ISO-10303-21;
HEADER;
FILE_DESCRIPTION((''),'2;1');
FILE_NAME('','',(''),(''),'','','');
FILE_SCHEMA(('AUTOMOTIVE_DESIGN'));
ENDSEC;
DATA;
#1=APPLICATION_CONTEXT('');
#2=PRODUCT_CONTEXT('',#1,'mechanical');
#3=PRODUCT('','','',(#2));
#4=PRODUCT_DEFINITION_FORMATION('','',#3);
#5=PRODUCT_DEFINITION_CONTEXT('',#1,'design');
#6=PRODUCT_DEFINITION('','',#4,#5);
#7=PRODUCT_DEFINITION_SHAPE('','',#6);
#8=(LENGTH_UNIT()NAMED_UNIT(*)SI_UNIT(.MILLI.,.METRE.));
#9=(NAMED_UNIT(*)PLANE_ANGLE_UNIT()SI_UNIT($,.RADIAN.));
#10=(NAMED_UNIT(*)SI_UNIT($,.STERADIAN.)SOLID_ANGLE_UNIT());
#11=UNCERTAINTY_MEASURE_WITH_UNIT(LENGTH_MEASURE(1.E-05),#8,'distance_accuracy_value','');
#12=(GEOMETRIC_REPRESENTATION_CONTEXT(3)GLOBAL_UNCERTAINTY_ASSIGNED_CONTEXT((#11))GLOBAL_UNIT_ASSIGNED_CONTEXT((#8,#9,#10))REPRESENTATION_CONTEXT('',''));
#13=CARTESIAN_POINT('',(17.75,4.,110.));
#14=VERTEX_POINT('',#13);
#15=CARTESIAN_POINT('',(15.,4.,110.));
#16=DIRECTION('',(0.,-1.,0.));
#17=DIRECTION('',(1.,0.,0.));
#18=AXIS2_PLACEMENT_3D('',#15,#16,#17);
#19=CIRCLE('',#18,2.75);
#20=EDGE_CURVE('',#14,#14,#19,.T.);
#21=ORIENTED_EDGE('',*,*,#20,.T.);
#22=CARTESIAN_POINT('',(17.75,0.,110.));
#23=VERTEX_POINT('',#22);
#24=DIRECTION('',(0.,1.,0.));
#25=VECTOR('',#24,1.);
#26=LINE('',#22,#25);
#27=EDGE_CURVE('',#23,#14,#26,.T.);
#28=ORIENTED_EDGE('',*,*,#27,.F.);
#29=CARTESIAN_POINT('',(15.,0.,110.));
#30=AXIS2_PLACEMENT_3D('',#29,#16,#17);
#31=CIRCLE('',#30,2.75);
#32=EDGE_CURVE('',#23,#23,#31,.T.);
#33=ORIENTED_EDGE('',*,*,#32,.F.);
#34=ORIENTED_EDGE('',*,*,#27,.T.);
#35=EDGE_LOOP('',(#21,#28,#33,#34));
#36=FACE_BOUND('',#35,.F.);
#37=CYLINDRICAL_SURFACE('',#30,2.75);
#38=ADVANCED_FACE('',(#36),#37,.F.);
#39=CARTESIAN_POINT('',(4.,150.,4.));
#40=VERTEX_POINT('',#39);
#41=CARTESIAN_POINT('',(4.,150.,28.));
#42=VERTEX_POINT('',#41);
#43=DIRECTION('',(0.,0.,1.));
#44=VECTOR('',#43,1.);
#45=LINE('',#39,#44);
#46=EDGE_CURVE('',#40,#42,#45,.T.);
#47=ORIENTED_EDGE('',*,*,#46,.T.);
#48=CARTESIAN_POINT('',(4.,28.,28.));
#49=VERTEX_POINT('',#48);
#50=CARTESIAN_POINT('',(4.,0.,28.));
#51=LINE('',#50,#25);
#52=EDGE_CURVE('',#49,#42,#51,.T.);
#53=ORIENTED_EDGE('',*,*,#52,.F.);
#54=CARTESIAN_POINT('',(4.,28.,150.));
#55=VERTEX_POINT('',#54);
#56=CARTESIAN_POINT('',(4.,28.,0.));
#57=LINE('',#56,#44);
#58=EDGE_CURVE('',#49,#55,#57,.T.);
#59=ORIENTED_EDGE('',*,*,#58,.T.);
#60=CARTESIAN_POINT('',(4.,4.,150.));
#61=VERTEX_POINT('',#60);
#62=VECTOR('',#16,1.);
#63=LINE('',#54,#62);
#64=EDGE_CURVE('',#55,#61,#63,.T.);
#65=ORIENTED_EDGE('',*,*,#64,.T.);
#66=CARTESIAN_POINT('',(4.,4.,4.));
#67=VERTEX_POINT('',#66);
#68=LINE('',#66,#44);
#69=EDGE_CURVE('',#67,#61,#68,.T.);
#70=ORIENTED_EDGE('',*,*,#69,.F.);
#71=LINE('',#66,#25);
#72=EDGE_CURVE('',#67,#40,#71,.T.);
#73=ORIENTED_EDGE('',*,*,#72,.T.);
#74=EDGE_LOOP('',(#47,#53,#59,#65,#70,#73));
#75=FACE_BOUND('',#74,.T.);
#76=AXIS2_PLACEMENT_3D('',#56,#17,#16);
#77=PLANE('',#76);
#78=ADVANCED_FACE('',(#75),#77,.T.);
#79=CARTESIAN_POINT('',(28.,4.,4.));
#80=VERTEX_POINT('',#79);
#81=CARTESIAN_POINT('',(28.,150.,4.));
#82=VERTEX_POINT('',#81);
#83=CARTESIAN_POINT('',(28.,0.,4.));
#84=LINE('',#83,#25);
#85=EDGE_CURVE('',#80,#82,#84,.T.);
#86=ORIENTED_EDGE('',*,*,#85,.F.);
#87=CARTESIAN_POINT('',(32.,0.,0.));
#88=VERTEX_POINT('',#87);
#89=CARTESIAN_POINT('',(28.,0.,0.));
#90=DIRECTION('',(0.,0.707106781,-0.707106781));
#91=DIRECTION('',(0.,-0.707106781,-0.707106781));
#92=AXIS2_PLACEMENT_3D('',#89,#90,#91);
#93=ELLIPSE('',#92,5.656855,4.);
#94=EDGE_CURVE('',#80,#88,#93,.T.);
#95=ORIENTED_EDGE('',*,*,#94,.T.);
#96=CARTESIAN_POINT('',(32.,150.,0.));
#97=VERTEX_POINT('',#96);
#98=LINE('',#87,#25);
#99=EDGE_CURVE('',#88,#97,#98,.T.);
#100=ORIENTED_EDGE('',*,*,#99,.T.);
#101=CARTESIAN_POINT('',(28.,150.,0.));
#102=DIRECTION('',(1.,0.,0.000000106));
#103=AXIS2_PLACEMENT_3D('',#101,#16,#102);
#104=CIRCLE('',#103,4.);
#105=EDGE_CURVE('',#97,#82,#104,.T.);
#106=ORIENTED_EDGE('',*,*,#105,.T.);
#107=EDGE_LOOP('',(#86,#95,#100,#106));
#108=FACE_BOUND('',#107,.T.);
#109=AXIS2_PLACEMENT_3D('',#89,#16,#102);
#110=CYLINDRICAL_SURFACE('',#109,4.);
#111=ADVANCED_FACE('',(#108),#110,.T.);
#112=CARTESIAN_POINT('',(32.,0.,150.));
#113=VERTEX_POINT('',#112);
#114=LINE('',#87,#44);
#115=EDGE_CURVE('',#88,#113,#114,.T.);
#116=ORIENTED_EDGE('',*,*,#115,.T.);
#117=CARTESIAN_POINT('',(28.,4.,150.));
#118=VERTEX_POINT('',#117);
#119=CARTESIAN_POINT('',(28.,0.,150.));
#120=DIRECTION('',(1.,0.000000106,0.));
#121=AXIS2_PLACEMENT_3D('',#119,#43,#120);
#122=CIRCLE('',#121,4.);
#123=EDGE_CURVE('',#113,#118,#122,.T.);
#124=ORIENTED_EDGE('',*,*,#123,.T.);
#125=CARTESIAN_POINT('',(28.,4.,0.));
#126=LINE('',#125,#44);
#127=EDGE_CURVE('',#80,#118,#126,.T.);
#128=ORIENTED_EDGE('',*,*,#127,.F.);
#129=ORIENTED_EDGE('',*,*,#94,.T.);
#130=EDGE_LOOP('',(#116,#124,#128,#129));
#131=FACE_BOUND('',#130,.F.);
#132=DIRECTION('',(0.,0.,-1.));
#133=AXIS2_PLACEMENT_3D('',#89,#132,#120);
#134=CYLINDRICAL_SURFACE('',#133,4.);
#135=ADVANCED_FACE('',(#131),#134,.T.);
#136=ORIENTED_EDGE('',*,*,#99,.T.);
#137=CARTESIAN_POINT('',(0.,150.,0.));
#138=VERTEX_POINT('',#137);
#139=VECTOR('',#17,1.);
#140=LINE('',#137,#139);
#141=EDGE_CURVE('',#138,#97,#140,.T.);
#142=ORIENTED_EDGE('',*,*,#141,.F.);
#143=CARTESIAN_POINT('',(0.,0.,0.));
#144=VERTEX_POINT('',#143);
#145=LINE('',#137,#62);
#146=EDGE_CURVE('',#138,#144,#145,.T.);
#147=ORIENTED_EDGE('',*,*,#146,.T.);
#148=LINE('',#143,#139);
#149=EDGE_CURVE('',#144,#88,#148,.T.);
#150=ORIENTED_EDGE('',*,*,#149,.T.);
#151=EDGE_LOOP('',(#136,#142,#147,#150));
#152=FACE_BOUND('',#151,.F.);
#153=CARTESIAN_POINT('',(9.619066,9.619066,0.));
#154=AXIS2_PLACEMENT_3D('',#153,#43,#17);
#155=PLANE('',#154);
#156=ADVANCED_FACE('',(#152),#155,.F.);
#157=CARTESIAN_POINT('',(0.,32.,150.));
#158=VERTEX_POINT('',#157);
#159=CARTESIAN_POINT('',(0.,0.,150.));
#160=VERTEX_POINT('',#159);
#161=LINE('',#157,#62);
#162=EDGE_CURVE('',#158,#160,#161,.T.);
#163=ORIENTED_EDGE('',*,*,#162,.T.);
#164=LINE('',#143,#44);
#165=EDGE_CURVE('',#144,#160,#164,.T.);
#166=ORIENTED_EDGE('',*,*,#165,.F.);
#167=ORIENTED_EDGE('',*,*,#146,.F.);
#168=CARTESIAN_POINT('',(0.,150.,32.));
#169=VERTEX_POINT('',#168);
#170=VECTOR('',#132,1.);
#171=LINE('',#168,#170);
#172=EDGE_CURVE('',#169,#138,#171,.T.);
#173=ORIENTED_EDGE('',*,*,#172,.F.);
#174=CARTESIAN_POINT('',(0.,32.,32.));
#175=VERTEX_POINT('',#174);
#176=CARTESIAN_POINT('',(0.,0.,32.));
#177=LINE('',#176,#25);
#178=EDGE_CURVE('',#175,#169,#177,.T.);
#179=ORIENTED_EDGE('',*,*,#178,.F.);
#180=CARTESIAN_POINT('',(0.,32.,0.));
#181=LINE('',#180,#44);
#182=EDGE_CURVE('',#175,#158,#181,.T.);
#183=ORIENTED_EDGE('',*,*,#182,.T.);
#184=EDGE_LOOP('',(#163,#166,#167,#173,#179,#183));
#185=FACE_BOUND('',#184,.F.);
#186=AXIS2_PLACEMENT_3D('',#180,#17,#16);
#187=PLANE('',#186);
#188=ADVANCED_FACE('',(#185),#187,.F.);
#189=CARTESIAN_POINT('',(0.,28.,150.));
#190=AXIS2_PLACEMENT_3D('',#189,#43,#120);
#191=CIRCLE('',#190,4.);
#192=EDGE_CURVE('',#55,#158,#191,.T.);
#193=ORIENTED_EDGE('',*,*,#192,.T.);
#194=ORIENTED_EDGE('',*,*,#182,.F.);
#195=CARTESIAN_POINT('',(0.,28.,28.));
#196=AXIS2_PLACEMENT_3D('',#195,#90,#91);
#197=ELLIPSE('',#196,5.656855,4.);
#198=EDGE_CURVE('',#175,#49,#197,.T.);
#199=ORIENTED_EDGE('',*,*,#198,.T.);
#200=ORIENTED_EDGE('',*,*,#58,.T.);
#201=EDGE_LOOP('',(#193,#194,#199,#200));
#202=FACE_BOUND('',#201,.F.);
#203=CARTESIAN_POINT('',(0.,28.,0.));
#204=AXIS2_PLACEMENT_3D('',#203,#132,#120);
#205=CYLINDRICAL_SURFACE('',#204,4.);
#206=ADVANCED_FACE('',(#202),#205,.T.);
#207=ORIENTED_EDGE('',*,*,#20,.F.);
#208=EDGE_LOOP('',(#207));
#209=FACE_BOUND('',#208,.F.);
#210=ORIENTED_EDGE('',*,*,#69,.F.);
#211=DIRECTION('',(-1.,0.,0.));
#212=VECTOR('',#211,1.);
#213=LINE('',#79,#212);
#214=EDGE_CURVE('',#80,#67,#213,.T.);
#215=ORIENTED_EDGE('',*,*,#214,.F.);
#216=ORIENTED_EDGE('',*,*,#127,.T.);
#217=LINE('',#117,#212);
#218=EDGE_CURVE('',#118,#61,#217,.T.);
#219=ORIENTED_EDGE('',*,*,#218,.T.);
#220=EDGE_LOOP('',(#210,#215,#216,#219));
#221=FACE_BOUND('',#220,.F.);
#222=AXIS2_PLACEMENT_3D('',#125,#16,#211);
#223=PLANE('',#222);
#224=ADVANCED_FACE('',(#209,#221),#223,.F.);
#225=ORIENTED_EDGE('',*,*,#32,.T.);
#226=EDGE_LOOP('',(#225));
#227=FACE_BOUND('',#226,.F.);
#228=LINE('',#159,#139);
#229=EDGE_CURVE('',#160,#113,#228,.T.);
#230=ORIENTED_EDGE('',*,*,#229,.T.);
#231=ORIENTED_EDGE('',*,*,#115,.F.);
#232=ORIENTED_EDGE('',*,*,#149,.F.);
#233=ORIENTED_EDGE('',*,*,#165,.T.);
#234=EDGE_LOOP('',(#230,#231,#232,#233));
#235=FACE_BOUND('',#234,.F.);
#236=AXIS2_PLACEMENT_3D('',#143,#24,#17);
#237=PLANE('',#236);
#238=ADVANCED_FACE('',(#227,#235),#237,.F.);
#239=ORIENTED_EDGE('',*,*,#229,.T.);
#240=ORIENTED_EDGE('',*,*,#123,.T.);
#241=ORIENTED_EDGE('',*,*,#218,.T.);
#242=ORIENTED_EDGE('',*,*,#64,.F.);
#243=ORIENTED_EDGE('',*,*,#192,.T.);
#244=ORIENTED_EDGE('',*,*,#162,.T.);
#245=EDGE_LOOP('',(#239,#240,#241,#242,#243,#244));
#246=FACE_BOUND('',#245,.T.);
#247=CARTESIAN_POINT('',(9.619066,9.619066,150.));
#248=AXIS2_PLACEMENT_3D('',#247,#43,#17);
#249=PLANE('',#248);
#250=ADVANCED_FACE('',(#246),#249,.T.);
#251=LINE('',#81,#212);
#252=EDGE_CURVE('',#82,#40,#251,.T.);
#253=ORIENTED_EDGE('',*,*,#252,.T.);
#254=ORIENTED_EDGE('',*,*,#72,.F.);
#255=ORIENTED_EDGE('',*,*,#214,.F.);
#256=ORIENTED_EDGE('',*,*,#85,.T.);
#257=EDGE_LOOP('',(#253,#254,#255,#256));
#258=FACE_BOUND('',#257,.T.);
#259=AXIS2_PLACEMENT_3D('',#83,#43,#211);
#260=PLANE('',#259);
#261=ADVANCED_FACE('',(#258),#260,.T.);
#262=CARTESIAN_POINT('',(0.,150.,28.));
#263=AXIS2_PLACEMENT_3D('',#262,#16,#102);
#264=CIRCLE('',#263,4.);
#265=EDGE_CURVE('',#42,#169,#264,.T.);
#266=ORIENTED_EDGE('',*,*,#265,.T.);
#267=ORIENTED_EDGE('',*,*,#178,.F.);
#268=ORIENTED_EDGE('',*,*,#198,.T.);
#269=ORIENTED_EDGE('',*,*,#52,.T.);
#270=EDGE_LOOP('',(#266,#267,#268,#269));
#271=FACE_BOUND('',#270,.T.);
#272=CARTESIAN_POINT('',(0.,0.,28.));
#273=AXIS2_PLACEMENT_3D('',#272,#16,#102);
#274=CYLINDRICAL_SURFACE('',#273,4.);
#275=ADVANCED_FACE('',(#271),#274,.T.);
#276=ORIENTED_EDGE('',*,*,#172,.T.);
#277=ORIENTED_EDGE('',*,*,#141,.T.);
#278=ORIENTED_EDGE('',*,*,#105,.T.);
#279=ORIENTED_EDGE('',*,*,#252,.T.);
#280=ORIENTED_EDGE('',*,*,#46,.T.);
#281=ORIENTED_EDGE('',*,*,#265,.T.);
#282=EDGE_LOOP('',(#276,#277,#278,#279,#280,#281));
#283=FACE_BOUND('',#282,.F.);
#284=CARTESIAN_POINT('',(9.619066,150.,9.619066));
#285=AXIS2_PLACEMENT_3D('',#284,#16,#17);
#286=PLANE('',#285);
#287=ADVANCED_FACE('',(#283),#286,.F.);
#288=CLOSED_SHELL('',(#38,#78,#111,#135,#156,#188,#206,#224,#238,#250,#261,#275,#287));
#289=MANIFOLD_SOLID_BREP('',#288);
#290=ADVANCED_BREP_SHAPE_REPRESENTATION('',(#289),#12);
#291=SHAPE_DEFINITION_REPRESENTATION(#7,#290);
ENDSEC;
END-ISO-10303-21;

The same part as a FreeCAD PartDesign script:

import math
import FreeCAD as App
import Part
import Sketcher

V = App.Vector

doc = App.newDocument("Part")
body = doc.addObject("PartDesign::Body", "Body")

# Sketch on XY plane
sketch1 = body.newObject("Sketcher::SketchObject", "Sketch")
sketch1.AttachmentSupport = (doc.getObject("XY_Plane"), [""])
sketch1.MapMode = "FlatFace"
sketch1.addGeometry(Part.LineSegment(V(0, 32, 0), V(0, 0, 0)), False)
sketch1.addGeometry(Part.LineSegment(V(0, 0, 0), V(32, 0, 0)), False)
sketch1.addGeometry(Part.ArcOfCircle(Part.Circle(V(28, 0, 0), V(0, 0, 1), 4), math.radians(0), math.radians(90)), False)
sketch1.addGeometry(Part.LineSegment(V(28, 4, 0), V(4, 4, 0)), False)
sketch1.addGeometry(Part.LineSegment(V(4, 4, 0), V(4, 28, 0)), False)
sketch1.addGeometry(Part.ArcOfCircle(Part.Circle(V(0, 28, 0), V(0, 0, 1), 4), math.radians(0), math.radians(90)), False)
sketch1.addConstraint(Sketcher.Constraint("Coincident", 0, 2, 1, 1))
sketch1.addConstraint(Sketcher.Constraint("Coincident", 1, 2, 2, 1))
sketch1.addConstraint(Sketcher.Constraint("Tangent", 2, 2, 3, 1))
sketch1.addConstraint(Sketcher.Constraint("Coincident", 3, 2, 4, 1))
sketch1.addConstraint(Sketcher.Constraint("Tangent", 4, 2, 5, 1))
sketch1.addConstraint(Sketcher.Constraint("Coincident", 5, 2, 0, 1))
sketch1.addConstraint(Sketcher.Constraint("Vertical", 0))
sketch1.addConstraint(Sketcher.Constraint("Horizontal", 1))
sketch1.addConstraint(Sketcher.Constraint("Horizontal", 3))
sketch1.addConstraint(Sketcher.Constraint("Vertical", 4))
sketch1.addConstraint(Sketcher.Constraint("Coincident", 0, 2, -1, 1))
sketch1.addConstraint(Sketcher.Constraint("Equal", 2, 5))
sketch1.addConstraint(Sketcher.Constraint("PointOnObject", 2, 3, -1))
sketch1.addConstraint(Sketcher.Constraint("PointOnObject", 5, 3, -2))
sketch1.addConstraint(Sketcher.Constraint("Equal", 1, 0))
sketch1.addConstraint(Sketcher.Constraint("Radius", 2, 4.0))
sketch1.addConstraint(Sketcher.Constraint("DistanceX", 1, 1, 1, 2, 32.0))
pad1 = body.newObject("PartDesign::Pad", "Pad")
pad1.Profile = sketch1
pad1.Length = 150

# Sketch on XZ plane
sketch2 = body.newObject("Sketcher::SketchObject", "Sketch001")
sketch2.AttachmentSupport = (doc.getObject("XZ_Plane"), [""])
sketch2.MapMode = "FlatFace"
sketch2.addGeometry(Part.LineSegment(V(0, 32, 0), V(0, 0, 0)), False)
sketch2.addGeometry(Part.LineSegment(V(0, 0, 0), V(32, 0, 0)), False)
sketch2.addGeometry(Part.ArcOfCircle(Part.Circle(V(28, 0, 0), V(0, 0, 1), 4), math.radians(0), math.radians(90)), False)
sketch2.addGeometry(Part.LineSegment(V(28, 4, 0), V(4, 4, 0)), False)
sketch2.addGeometry(Part.LineSegment(V(4, 4, 0), V(4, 28, 0)), False)
sketch2.addGeometry(Part.ArcOfCircle(Part.Circle(V(0, 28, 0), V(0, 0, 1), 4), math.radians(0), math.radians(90)), False)
sketch2.addConstraint(Sketcher.Constraint("Coincident", 0, 2, 1, 1))
sketch2.addConstraint(Sketcher.Constraint("Coincident", 1, 2, 2, 1))
sketch2.addConstraint(Sketcher.Constraint("Tangent", 2, 2, 3, 1))
sketch2.addConstraint(Sketcher.Constraint("Coincident", 3, 2, 4, 1))
sketch2.addConstraint(Sketcher.Constraint("Tangent", 4, 2, 5, 1))
sketch2.addConstraint(Sketcher.Constraint("Coincident", 5, 2, 0, 1))
sketch2.addConstraint(Sketcher.Constraint("Vertical", 0))
sketch2.addConstraint(Sketcher.Constraint("Horizontal", 1))
sketch2.addConstraint(Sketcher.Constraint("Horizontal", 3))
sketch2.addConstraint(Sketcher.Constraint("Vertical", 4))
sketch2.addConstraint(Sketcher.Constraint("Coincident", 0, 2, -1, 1))
sketch2.addConstraint(Sketcher.Constraint("Equal", 2, 5))
sketch2.addConstraint(Sketcher.Constraint("PointOnObject", 2, 3, -1))
sketch2.addConstraint(Sketcher.Constraint("PointOnObject", 5, 3, -2))
sketch2.addConstraint(Sketcher.Constraint("Equal", 1, 0))
sketch2.addConstraint(Sketcher.Constraint("Radius", 2, 4.0))
sketch2.addConstraint(Sketcher.Constraint("DistanceX", 1, 1, 1, 2, 32.0))
pad2 = body.newObject("PartDesign::Pad", "Pad001")
pad2.Profile = sketch2
pad2.Length = 150
pad2.Reversed = True

# Sketch on XZ plane
sketch3 = body.newObject("Sketcher::SketchObject", "Sketch002")
sketch3.AttachmentSupport = (doc.getObject("XZ_Plane"), [""])
sketch3.MapMode = "FlatFace"
sketch3.addGeometry(Part.Circle(V(15, 110, 0), V(0, 0, 1), 2.8), False)
sketch3.addConstraint(Sketcher.Constraint("Diameter", 0, 5.5))
sketch3.addConstraint(Sketcher.Constraint("DistanceX", -1, 1, 0, 3, 15.0))
sketch3.addConstraint(Sketcher.Constraint("DistanceY", -1, 1, 0, 3, 110.0))
pocket1 = body.newObject("PartDesign::Pocket", "Pocket")
pocket1.Profile = sketch3
pocket1.Type = "ThroughAll"

doc.recompute()
